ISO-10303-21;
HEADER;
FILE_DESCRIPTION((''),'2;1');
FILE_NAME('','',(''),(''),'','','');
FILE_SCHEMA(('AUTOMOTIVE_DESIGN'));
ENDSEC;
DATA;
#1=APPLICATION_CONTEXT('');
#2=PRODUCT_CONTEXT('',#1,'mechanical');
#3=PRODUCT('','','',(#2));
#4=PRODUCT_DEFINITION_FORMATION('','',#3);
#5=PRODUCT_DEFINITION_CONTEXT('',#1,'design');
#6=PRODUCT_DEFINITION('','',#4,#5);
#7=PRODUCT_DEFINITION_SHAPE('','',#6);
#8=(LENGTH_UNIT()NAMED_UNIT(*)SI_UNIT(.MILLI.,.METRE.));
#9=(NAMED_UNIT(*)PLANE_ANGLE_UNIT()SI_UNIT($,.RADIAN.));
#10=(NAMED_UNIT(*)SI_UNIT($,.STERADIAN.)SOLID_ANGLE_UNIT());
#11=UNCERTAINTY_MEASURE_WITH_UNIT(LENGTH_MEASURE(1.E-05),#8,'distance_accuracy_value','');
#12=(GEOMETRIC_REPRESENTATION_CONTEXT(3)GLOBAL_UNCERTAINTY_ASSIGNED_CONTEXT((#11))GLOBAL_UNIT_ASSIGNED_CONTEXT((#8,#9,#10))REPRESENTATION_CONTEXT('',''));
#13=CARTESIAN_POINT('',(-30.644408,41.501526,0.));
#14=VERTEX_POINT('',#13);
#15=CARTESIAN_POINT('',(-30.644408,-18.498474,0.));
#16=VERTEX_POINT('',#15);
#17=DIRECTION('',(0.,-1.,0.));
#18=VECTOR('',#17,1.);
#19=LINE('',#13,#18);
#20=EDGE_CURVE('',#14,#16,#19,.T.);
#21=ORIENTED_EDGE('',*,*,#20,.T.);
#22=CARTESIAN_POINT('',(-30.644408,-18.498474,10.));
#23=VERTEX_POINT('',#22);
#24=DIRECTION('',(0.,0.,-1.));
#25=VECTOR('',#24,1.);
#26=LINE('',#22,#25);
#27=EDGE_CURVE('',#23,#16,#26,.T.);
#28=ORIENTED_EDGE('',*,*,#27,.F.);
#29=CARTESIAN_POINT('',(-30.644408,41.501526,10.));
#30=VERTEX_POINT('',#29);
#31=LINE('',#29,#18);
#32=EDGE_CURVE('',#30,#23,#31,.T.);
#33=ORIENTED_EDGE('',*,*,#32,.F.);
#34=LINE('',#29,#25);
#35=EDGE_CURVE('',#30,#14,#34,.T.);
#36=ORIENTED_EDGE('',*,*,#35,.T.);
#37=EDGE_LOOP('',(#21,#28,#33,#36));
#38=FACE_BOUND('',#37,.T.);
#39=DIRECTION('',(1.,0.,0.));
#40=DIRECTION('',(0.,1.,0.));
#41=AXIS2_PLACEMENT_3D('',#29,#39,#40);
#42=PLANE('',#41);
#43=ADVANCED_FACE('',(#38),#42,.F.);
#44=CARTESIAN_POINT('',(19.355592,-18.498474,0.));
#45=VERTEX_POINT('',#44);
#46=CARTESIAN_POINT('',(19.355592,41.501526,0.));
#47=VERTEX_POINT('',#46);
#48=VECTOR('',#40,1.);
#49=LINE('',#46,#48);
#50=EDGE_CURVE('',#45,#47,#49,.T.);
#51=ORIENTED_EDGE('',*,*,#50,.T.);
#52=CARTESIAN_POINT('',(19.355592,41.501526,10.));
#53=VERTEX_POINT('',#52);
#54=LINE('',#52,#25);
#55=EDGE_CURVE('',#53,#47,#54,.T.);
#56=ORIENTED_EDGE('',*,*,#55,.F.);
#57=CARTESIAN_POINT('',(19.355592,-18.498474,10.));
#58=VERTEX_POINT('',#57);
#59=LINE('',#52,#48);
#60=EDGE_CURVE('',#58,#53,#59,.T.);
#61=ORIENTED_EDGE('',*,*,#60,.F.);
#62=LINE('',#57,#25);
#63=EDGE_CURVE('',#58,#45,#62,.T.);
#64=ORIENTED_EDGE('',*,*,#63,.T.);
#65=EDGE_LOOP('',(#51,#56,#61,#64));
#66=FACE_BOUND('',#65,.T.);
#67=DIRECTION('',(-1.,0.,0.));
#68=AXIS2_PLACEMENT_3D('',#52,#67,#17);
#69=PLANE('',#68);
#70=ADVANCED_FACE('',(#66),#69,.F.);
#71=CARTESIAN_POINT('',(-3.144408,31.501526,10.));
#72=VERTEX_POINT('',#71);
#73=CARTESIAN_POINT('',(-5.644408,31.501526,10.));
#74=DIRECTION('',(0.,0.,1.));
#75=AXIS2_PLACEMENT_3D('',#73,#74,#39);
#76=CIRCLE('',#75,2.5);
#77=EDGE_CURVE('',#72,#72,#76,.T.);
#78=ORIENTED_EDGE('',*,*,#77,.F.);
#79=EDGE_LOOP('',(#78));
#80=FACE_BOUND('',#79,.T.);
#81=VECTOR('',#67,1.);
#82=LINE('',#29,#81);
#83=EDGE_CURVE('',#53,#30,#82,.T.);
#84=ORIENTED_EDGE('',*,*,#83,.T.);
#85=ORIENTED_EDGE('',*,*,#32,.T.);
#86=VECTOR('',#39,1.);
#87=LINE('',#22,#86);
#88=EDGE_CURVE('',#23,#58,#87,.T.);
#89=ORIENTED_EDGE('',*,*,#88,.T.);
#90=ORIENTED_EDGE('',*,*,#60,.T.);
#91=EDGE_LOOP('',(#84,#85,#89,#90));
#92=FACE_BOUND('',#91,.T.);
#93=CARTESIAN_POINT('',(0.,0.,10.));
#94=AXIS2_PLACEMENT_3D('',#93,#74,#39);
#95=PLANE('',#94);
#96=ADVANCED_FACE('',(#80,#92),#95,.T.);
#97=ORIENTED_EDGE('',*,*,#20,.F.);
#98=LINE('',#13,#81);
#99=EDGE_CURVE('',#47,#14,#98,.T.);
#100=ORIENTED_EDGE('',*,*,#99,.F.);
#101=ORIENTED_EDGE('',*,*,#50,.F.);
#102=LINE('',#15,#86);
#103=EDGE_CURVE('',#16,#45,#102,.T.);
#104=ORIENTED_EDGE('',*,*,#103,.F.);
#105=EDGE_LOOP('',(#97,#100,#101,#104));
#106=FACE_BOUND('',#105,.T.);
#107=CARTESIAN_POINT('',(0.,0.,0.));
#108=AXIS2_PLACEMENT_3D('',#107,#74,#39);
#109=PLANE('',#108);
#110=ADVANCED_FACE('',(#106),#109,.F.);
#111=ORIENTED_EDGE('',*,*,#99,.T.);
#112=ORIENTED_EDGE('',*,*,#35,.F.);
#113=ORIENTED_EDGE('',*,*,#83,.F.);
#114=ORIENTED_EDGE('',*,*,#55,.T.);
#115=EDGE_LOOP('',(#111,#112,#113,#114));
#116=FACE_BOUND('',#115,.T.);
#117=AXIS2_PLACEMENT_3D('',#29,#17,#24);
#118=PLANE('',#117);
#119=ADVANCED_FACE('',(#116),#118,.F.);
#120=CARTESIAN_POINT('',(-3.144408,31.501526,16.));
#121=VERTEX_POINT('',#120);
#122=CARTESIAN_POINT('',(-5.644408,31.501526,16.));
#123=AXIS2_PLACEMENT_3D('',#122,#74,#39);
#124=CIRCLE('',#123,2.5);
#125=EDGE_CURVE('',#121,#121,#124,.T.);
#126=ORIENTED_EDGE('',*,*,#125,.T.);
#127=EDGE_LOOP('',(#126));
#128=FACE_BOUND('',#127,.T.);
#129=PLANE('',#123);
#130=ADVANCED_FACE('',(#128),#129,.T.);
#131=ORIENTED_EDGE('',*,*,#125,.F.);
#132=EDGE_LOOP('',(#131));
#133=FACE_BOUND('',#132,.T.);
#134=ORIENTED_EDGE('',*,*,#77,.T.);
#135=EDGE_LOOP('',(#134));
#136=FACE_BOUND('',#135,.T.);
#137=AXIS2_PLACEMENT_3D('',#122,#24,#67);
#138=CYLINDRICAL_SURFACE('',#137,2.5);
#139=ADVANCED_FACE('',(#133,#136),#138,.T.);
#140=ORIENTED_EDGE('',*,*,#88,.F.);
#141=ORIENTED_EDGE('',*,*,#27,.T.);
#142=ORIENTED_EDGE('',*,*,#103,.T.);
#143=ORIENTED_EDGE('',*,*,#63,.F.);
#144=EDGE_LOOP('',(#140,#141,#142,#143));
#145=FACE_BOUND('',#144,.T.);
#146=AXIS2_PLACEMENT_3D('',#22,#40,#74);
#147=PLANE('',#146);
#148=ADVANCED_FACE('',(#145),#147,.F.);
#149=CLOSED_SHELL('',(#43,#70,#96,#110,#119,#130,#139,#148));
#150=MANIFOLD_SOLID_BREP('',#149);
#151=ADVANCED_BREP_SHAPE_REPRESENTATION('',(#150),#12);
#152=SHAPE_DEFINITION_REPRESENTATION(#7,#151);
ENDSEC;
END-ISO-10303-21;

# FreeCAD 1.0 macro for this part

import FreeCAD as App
import Part
import Sketcher

V = App.Vector


def add_polygon(sketch, points):
    """Adds a closed chain of lines whose ends are joined by coincident constraints."""
    first, n = sketch.GeometryCount, len(points)
    for a, b in zip(points, points[1:] + points[:1]):
        sketch.addGeometry(Part.LineSegment(App.Vector(*a, 0), App.Vector(*b, 0)), False)
    for i in range(n):
        sketch.addConstraint(Sketcher.Constraint("Coincident", first + i, 2, first + (i + 1) % n, 1))

doc = App.newDocument("Part")
body = doc.addObject("PartDesign::Body", "Body")

# Sketch on XY plane
sketch1 = body.newObject("Sketcher::SketchObject", "Sketch")
sketch1.AttachmentSupport = (doc.getObject("XY_Plane"), [""])
sketch1.MapMode = "FlatFace"
add_polygon(sketch1, [(-31, 42), (-31, -18), (19, -18), (19, 42)])  # lines 0-3
sketch1.addConstraint([
    Sketcher.Constraint("Vertical", 0),
    Sketcher.Constraint("Horizontal", 1),
    Sketcher.Constraint("Vertical", 2),
    Sketcher.Constraint("Horizontal", 3),
    Sketcher.Constraint("DistanceX", 1, 1, 1, 2, 50.0),
    Sketcher.Constraint("DistanceY", 0, 2, 0, 1, 60.0),
    Sketcher.Constraint("DistanceX", 0, 2, -1, 1, 30.644408),
    Sketcher.Constraint("DistanceY", 0, 2, -1, 1, 18.498474),
])
pad1 = body.newObject("PartDesign::Pad", "Pad")
pad1.Profile = sketch1
pad1.Length = 10

# Sketch on XY plane
sketch2 = body.newObject("Sketcher::SketchObject", "Sketch001")
sketch2.AttachmentSupport = (doc.getObject("XY_Plane"), [""])
sketch2.MapMode = "FlatFace"
sketch2.AttachmentOffset = App.Placement(V(0, 0, 10), App.Rotation())
sketch2.addGeometry(Part.Circle(V(-5.6, 31.5, 0), V(0, 0, 1), 2.5), False)
sketch2.addConstraint([
    Sketcher.Constraint("Diameter", 0, 5.0),
    Sketcher.Constraint("DistanceX", 0, 3, -1, 1, 5.644408),
    Sketcher.Constraint("DistanceY", -1, 1, 0, 3, 31.501526),
])
pad2 = body.newObject("PartDesign::Pad", "Pad001")
pad2.Profile = sketch2
pad2.Length = 6

doc.recompute()
